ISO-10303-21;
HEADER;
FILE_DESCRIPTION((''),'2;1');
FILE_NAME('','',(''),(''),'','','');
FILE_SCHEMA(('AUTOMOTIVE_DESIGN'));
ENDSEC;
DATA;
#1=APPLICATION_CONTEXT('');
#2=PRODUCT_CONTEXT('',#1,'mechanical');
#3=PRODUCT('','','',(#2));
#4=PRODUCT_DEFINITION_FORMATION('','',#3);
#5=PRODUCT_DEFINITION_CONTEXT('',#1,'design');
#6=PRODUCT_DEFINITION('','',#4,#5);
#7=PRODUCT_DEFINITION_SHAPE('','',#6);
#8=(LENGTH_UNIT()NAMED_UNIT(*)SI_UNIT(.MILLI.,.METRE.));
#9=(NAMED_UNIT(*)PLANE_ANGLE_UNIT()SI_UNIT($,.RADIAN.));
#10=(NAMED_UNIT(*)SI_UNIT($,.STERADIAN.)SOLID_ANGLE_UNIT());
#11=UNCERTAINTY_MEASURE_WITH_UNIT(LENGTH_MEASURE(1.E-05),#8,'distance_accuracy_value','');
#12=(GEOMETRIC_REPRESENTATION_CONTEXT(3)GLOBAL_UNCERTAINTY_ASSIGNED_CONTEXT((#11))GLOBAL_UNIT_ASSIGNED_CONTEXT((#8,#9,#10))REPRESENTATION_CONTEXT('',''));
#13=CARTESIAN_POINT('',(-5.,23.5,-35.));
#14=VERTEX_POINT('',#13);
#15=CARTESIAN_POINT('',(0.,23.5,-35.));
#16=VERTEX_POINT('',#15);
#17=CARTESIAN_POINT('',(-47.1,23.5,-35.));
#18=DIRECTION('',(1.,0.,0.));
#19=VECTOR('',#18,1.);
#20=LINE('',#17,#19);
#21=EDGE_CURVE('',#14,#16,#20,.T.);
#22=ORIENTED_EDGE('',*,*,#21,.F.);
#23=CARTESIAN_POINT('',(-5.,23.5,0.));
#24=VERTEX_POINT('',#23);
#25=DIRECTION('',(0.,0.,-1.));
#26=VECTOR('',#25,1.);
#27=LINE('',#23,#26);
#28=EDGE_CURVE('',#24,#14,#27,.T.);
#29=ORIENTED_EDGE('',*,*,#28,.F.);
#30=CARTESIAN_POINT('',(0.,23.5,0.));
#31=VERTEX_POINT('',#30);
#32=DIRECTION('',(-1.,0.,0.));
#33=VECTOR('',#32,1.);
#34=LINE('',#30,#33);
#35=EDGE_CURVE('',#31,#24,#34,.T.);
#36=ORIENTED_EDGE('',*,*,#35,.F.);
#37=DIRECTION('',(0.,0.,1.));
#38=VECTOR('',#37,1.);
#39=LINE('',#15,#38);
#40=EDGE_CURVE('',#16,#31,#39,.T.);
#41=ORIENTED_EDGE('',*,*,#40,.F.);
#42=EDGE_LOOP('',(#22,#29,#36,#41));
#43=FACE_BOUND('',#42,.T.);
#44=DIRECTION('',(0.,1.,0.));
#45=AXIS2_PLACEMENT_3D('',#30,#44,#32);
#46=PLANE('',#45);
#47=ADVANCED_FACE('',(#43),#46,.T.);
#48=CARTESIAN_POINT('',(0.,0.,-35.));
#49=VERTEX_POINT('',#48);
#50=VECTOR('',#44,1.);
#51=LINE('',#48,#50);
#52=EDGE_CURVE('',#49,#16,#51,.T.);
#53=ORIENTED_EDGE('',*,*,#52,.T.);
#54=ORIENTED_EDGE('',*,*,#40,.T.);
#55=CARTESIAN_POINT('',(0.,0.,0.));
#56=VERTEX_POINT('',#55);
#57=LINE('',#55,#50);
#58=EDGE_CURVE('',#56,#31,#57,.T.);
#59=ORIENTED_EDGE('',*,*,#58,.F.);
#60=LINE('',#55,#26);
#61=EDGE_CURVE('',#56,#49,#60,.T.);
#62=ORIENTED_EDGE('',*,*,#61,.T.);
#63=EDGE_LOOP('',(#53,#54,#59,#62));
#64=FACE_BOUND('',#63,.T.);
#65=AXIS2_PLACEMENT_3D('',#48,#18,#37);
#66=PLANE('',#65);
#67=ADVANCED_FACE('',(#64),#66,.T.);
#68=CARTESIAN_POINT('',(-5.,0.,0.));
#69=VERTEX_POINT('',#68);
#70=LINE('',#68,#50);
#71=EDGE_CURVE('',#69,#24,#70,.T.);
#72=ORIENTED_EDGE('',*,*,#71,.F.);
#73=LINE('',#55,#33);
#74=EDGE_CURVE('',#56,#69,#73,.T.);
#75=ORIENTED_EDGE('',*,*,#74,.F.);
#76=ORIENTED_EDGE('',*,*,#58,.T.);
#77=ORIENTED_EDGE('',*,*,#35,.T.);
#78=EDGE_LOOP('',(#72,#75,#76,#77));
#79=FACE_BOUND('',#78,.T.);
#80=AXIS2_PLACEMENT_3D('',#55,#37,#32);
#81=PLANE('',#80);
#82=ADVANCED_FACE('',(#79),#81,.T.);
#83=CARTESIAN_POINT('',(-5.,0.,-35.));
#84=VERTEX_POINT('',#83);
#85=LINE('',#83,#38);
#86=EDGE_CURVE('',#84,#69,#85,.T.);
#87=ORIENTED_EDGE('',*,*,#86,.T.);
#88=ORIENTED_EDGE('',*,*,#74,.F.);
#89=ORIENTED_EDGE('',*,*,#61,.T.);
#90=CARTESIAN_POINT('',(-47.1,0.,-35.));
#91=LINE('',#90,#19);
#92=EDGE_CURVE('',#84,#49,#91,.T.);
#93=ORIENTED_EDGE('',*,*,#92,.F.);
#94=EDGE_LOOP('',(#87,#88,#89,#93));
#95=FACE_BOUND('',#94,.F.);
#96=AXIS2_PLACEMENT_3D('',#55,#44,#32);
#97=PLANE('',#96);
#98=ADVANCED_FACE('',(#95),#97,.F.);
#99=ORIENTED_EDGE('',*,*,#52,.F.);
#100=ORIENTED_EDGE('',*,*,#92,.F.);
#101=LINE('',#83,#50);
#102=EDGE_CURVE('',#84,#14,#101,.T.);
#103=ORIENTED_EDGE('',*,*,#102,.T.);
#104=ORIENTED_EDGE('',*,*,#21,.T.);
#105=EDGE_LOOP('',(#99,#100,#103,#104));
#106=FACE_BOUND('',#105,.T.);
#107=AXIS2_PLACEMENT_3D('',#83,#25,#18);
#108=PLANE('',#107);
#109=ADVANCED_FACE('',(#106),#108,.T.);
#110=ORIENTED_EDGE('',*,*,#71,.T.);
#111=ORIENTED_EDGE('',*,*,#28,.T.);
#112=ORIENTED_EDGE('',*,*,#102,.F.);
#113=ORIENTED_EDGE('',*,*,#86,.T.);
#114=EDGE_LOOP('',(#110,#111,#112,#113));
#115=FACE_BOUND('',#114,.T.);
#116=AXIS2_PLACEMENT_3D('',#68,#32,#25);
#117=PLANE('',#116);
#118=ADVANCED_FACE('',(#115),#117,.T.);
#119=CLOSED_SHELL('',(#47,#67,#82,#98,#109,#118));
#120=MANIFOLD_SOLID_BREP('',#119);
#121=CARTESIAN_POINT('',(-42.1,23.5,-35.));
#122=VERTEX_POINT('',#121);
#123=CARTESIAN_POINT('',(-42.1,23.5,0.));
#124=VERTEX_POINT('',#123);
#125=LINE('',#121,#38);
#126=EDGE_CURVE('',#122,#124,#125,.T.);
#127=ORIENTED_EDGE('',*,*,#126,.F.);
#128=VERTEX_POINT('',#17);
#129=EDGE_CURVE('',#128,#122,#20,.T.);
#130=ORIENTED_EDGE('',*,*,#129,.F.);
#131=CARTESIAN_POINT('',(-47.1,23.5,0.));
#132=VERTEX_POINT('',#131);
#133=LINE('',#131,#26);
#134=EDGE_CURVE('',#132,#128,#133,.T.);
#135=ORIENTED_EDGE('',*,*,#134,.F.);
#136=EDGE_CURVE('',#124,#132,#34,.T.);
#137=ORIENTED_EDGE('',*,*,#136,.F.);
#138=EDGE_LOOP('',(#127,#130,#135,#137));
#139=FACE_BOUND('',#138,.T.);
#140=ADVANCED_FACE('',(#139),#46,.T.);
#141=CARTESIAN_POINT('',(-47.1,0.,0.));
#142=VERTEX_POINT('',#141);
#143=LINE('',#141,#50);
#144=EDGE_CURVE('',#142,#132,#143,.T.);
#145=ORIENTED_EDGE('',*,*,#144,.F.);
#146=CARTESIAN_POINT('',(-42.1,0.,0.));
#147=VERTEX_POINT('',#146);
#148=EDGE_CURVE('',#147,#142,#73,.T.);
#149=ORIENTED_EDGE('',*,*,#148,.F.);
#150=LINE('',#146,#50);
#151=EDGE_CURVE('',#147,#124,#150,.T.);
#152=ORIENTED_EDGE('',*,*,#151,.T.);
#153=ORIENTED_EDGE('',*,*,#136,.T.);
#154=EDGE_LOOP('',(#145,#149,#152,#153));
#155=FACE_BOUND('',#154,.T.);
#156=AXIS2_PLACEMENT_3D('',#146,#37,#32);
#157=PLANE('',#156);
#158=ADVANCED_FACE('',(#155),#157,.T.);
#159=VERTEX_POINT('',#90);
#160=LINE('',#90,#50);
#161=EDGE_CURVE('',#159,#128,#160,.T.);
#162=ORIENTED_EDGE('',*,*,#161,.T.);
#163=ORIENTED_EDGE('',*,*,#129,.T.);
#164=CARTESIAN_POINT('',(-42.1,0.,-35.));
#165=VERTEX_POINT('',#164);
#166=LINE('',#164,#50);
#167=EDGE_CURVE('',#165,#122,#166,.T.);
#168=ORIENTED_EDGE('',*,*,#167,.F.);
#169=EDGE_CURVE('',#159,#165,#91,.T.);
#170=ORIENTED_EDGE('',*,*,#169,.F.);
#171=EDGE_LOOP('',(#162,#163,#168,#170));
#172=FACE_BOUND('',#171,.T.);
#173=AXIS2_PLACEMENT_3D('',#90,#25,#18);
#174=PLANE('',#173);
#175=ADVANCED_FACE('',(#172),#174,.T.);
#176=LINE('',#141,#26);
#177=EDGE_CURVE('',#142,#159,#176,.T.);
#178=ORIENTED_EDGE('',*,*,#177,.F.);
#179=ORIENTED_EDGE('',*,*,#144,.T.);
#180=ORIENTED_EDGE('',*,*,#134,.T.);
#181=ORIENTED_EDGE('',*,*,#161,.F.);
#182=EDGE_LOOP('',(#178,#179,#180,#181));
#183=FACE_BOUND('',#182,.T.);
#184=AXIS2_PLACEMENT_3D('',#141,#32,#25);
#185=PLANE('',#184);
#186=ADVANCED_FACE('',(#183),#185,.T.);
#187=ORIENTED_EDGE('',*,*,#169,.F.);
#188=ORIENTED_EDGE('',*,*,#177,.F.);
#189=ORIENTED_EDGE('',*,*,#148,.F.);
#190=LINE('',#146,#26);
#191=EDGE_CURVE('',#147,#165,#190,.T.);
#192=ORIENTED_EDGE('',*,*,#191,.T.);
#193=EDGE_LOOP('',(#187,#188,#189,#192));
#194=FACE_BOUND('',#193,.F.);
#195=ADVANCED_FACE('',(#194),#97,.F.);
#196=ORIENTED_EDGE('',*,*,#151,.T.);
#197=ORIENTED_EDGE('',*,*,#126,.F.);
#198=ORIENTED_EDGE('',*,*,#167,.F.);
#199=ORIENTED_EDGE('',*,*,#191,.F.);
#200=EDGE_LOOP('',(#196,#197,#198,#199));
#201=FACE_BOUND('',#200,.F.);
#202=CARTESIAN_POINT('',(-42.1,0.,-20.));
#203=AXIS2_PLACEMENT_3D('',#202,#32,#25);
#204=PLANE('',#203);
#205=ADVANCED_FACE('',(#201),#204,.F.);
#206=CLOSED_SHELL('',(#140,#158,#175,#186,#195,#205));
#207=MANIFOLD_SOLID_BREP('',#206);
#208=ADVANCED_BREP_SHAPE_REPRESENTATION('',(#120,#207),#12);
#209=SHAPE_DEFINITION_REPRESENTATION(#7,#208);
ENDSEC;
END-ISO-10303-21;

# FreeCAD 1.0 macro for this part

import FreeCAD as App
import Part
import Sketcher

V = App.Vector
Q = App.Units.Quantity

doc = App.newDocument("Part")
params = doc.addObject("Spreadsheet::Sheet", "Params")
for row, (alias, value) in enumerate([
    ("sketch1_width", "5 mm"),
    ("sketch1_height", "35 mm"),
    ("pad1_length", "23.5 mm"),
], start=1):
    params.set(f"A{row}", alias)
    params.set(f"B{row}", "=" + value)
    params.setAlias(f"B{row}", alias)

body = doc.addObject("PartDesign::Body", "Body")
body.AllowCompound = True

sketch1 = body.newObject("Sketcher::SketchObject", "Sketch")
sketch1.AttachmentSupport = (doc.getObject("XZ_Plane"), [""])
sketch1.MapMode = "FlatFace"
sketch1.addGeometry([
    Part.LineSegment(V(-5, 0, 0), V(0, 0, 0)),
    Part.LineSegment(V(0, 0, 0), V(0, -35, 0)),
    Part.LineSegment(V(0, -35, 0), V(-5, -35, 0)),
    Part.LineSegment(V(-5, -35, 0), V(-5, 0, 0)),
    Part.LineSegment(V(-47, 0, 0), V(-42, 0, 0)),
    Part.LineSegment(V(-42, 0, 0), V(-42, -35, 0)),
    Part.LineSegment(V(-42, -35, 0), V(-47, -35, 0)),
    Part.LineSegment(V(-47, -35, 0), V(-47, 0, 0)),
], False)
sketch1.addConstraint([
    Sketcher.Constraint("Coincident", 0, 2, 1, 1),
    Sketcher.Constraint("Coincident", 1, 2, 2, 1),
    Sketcher.Constraint("Coincident", 2, 2, 3, 1),
    Sketcher.Constraint("Coincident", 3, 2, 0, 1),
    Sketcher.Constraint("Coincident", 4, 2, 5, 1),
    Sketcher.Constraint("Coincident", 5, 2, 6, 1),
    Sketcher.Constraint("Coincident", 6, 2, 7, 1),
    Sketcher.Constraint("Coincident", 7, 2, 4, 1),
    Sketcher.Constraint("Horizontal", 0),
    Sketcher.Constraint("Vertical", 1),
    Sketcher.Constraint("Horizontal", 2),
    Sketcher.Constraint("Vertical", 3),
    Sketcher.Constraint("Horizontal", 4),
    Sketcher.Constraint("Vertical", 5),
    Sketcher.Constraint("Horizontal", 6),
    Sketcher.Constraint("Vertical", 7),
    Sketcher.Constraint("Coincident", 0, 2, -1, 1),
    Sketcher.Constraint("PointOnObject", 4, 2, -1),
    Sketcher.Constraint("Horizontal", 2, 2, 5, 2),
    Sketcher.Constraint("Equal", 2, 4),
    Sketcher.Constraint("DistanceX", 0, 1, 0, 2, Q("5 mm")),
    Sketcher.Constraint("DistanceY", 1, 2, 1, 1, Q("35 mm")),
    Sketcher.Constraint("DistanceX", 6, 2, -1, 1, Q("47.1 mm")),
])
sketch1.setExpression("Constraints[20]", "Params.sketch1_width")
sketch1.setExpression("Constraints[21]", "Params.sketch1_height")
pad1 = body.newObject("PartDesign::Pad", "Pad")
pad1.Profile = sketch1
pad1.setExpression("Length", "Params.pad1_length")
pad1.Reversed = True

doc.recompute()
